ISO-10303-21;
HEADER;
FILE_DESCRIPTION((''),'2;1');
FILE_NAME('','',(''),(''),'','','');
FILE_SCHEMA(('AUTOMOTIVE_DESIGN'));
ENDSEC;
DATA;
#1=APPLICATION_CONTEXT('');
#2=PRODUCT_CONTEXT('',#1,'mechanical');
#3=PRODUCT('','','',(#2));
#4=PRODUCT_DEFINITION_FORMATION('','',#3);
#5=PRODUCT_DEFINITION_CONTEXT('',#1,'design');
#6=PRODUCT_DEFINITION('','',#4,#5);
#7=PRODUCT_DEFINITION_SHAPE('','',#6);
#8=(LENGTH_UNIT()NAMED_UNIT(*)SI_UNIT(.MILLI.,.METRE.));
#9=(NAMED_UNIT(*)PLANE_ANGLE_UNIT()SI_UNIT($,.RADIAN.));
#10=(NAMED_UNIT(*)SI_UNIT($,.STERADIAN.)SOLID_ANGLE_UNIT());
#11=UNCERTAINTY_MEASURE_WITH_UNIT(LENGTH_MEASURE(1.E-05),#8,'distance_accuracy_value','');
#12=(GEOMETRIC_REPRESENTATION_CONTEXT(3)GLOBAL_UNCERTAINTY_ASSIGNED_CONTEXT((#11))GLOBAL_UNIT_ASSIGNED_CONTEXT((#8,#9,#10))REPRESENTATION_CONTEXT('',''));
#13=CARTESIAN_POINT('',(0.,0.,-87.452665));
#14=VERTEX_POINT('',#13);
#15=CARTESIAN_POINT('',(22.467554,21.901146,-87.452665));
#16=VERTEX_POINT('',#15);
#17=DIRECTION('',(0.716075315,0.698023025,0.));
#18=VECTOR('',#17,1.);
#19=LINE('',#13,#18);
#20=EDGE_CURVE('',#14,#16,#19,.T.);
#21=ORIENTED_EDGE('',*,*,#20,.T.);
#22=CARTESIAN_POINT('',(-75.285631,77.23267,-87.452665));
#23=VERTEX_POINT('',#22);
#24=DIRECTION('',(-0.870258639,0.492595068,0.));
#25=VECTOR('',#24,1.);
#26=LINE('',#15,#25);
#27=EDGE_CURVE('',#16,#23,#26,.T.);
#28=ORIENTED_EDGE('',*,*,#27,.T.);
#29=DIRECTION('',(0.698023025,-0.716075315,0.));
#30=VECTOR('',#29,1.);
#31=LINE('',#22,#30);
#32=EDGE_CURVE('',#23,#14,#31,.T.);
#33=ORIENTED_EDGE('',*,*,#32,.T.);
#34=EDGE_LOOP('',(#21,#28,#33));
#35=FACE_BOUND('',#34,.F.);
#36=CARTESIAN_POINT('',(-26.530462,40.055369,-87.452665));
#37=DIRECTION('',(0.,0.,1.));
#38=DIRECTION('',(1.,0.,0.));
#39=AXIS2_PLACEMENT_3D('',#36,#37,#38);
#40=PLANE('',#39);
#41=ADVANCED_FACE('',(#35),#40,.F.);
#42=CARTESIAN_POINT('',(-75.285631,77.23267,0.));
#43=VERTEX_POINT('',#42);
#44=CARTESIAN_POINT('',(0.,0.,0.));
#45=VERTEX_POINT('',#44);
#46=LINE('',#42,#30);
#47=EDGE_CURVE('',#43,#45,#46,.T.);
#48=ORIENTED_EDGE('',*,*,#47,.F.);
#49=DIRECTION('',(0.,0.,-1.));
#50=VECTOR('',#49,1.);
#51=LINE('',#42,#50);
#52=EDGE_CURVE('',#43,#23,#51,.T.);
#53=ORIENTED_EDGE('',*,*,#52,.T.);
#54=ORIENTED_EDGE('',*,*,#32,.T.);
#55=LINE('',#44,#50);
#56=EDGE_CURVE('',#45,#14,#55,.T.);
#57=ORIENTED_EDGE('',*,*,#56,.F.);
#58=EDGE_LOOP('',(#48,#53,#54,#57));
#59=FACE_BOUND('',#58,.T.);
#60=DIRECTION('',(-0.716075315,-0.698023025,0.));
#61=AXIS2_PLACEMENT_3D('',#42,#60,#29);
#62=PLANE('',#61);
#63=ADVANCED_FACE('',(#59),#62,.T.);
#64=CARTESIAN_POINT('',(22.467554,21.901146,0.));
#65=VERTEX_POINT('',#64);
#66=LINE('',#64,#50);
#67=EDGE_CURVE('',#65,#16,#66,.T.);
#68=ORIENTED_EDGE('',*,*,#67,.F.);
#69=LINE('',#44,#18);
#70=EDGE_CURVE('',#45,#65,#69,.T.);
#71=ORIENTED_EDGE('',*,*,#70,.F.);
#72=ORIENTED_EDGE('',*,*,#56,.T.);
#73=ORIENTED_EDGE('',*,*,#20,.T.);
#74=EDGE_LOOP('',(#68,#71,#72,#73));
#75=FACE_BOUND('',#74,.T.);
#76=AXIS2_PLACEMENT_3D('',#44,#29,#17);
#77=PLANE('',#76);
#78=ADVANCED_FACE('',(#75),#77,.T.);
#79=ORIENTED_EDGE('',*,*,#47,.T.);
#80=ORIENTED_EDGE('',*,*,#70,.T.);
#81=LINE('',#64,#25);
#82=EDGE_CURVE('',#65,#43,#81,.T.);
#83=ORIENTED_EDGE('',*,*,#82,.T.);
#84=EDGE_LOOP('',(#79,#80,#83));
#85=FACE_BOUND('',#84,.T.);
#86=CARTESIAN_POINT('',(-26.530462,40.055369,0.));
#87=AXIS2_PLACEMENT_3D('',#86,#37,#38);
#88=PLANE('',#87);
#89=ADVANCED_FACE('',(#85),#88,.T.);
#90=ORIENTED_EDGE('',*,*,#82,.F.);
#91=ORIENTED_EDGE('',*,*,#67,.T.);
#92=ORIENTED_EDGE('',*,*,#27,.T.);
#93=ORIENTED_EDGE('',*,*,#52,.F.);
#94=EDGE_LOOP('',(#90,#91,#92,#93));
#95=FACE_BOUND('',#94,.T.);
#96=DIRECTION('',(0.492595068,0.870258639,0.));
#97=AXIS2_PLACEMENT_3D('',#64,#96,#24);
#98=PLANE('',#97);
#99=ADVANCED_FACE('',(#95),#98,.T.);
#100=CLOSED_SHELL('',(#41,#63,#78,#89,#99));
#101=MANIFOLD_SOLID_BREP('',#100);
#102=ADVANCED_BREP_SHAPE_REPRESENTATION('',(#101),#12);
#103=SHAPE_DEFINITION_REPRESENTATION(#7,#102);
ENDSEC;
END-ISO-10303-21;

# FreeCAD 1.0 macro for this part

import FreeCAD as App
import Part
import Sketcher
from FreeCAD import Vector

doc = App.newDocument("Part")
body = doc.addObject("PartDesign::Body", "Body")

sketch1 = body.newObject("Sketcher::SketchObject", "Sketch")
sketch1.AttachmentSupport = (doc.getObject("XY_Plane"), [""])
sketch1.MapMode = "FlatFace"
sketch1.addGeometry(Part.LineSegment(Vector(0, 0, 0), Vector(22, 22, 0)), False)
sketch1.addGeometry(Part.LineSegment(Vector(22, 22, 0), Vector(-75, 77, 0)), False)
sketch1.addGeometry(Part.LineSegment(Vector(-75, 77, 0), Vector(0, 0, 0)), False)
sketch1.addConstraint(Sketcher.Constraint("Coincident", 0, 2, 1, 1))
sketch1.addConstraint(Sketcher.Constraint("Coincident", 1, 2, 2, 1))
sketch1.addConstraint(Sketcher.Constraint("Coincident", 2, 2, 0, 1))
sketch1.addConstraint(Sketcher.Constraint("Coincident", 2, 2, -1, 1))
sketch1.addConstraint(Sketcher.Constraint("Perpendicular", 0, 2))
sketch1.addConstraint(Sketcher.Constraint("Distance", 1, 112.32659))
sketch1.addConstraint(Sketcher.Constraint("DistanceX", 1, 2, -1, 1, 75.285631))
sketch1.addConstraint(Sketcher.Constraint("DistanceY", -1, 1, 1, 2, 77.23267))
pad1 = body.newObject("PartDesign::Pad", "Pad")
pad1.Profile = sketch1
pad1.Length = 87.452665
pad1.Reversed = True

doc.recompute()
